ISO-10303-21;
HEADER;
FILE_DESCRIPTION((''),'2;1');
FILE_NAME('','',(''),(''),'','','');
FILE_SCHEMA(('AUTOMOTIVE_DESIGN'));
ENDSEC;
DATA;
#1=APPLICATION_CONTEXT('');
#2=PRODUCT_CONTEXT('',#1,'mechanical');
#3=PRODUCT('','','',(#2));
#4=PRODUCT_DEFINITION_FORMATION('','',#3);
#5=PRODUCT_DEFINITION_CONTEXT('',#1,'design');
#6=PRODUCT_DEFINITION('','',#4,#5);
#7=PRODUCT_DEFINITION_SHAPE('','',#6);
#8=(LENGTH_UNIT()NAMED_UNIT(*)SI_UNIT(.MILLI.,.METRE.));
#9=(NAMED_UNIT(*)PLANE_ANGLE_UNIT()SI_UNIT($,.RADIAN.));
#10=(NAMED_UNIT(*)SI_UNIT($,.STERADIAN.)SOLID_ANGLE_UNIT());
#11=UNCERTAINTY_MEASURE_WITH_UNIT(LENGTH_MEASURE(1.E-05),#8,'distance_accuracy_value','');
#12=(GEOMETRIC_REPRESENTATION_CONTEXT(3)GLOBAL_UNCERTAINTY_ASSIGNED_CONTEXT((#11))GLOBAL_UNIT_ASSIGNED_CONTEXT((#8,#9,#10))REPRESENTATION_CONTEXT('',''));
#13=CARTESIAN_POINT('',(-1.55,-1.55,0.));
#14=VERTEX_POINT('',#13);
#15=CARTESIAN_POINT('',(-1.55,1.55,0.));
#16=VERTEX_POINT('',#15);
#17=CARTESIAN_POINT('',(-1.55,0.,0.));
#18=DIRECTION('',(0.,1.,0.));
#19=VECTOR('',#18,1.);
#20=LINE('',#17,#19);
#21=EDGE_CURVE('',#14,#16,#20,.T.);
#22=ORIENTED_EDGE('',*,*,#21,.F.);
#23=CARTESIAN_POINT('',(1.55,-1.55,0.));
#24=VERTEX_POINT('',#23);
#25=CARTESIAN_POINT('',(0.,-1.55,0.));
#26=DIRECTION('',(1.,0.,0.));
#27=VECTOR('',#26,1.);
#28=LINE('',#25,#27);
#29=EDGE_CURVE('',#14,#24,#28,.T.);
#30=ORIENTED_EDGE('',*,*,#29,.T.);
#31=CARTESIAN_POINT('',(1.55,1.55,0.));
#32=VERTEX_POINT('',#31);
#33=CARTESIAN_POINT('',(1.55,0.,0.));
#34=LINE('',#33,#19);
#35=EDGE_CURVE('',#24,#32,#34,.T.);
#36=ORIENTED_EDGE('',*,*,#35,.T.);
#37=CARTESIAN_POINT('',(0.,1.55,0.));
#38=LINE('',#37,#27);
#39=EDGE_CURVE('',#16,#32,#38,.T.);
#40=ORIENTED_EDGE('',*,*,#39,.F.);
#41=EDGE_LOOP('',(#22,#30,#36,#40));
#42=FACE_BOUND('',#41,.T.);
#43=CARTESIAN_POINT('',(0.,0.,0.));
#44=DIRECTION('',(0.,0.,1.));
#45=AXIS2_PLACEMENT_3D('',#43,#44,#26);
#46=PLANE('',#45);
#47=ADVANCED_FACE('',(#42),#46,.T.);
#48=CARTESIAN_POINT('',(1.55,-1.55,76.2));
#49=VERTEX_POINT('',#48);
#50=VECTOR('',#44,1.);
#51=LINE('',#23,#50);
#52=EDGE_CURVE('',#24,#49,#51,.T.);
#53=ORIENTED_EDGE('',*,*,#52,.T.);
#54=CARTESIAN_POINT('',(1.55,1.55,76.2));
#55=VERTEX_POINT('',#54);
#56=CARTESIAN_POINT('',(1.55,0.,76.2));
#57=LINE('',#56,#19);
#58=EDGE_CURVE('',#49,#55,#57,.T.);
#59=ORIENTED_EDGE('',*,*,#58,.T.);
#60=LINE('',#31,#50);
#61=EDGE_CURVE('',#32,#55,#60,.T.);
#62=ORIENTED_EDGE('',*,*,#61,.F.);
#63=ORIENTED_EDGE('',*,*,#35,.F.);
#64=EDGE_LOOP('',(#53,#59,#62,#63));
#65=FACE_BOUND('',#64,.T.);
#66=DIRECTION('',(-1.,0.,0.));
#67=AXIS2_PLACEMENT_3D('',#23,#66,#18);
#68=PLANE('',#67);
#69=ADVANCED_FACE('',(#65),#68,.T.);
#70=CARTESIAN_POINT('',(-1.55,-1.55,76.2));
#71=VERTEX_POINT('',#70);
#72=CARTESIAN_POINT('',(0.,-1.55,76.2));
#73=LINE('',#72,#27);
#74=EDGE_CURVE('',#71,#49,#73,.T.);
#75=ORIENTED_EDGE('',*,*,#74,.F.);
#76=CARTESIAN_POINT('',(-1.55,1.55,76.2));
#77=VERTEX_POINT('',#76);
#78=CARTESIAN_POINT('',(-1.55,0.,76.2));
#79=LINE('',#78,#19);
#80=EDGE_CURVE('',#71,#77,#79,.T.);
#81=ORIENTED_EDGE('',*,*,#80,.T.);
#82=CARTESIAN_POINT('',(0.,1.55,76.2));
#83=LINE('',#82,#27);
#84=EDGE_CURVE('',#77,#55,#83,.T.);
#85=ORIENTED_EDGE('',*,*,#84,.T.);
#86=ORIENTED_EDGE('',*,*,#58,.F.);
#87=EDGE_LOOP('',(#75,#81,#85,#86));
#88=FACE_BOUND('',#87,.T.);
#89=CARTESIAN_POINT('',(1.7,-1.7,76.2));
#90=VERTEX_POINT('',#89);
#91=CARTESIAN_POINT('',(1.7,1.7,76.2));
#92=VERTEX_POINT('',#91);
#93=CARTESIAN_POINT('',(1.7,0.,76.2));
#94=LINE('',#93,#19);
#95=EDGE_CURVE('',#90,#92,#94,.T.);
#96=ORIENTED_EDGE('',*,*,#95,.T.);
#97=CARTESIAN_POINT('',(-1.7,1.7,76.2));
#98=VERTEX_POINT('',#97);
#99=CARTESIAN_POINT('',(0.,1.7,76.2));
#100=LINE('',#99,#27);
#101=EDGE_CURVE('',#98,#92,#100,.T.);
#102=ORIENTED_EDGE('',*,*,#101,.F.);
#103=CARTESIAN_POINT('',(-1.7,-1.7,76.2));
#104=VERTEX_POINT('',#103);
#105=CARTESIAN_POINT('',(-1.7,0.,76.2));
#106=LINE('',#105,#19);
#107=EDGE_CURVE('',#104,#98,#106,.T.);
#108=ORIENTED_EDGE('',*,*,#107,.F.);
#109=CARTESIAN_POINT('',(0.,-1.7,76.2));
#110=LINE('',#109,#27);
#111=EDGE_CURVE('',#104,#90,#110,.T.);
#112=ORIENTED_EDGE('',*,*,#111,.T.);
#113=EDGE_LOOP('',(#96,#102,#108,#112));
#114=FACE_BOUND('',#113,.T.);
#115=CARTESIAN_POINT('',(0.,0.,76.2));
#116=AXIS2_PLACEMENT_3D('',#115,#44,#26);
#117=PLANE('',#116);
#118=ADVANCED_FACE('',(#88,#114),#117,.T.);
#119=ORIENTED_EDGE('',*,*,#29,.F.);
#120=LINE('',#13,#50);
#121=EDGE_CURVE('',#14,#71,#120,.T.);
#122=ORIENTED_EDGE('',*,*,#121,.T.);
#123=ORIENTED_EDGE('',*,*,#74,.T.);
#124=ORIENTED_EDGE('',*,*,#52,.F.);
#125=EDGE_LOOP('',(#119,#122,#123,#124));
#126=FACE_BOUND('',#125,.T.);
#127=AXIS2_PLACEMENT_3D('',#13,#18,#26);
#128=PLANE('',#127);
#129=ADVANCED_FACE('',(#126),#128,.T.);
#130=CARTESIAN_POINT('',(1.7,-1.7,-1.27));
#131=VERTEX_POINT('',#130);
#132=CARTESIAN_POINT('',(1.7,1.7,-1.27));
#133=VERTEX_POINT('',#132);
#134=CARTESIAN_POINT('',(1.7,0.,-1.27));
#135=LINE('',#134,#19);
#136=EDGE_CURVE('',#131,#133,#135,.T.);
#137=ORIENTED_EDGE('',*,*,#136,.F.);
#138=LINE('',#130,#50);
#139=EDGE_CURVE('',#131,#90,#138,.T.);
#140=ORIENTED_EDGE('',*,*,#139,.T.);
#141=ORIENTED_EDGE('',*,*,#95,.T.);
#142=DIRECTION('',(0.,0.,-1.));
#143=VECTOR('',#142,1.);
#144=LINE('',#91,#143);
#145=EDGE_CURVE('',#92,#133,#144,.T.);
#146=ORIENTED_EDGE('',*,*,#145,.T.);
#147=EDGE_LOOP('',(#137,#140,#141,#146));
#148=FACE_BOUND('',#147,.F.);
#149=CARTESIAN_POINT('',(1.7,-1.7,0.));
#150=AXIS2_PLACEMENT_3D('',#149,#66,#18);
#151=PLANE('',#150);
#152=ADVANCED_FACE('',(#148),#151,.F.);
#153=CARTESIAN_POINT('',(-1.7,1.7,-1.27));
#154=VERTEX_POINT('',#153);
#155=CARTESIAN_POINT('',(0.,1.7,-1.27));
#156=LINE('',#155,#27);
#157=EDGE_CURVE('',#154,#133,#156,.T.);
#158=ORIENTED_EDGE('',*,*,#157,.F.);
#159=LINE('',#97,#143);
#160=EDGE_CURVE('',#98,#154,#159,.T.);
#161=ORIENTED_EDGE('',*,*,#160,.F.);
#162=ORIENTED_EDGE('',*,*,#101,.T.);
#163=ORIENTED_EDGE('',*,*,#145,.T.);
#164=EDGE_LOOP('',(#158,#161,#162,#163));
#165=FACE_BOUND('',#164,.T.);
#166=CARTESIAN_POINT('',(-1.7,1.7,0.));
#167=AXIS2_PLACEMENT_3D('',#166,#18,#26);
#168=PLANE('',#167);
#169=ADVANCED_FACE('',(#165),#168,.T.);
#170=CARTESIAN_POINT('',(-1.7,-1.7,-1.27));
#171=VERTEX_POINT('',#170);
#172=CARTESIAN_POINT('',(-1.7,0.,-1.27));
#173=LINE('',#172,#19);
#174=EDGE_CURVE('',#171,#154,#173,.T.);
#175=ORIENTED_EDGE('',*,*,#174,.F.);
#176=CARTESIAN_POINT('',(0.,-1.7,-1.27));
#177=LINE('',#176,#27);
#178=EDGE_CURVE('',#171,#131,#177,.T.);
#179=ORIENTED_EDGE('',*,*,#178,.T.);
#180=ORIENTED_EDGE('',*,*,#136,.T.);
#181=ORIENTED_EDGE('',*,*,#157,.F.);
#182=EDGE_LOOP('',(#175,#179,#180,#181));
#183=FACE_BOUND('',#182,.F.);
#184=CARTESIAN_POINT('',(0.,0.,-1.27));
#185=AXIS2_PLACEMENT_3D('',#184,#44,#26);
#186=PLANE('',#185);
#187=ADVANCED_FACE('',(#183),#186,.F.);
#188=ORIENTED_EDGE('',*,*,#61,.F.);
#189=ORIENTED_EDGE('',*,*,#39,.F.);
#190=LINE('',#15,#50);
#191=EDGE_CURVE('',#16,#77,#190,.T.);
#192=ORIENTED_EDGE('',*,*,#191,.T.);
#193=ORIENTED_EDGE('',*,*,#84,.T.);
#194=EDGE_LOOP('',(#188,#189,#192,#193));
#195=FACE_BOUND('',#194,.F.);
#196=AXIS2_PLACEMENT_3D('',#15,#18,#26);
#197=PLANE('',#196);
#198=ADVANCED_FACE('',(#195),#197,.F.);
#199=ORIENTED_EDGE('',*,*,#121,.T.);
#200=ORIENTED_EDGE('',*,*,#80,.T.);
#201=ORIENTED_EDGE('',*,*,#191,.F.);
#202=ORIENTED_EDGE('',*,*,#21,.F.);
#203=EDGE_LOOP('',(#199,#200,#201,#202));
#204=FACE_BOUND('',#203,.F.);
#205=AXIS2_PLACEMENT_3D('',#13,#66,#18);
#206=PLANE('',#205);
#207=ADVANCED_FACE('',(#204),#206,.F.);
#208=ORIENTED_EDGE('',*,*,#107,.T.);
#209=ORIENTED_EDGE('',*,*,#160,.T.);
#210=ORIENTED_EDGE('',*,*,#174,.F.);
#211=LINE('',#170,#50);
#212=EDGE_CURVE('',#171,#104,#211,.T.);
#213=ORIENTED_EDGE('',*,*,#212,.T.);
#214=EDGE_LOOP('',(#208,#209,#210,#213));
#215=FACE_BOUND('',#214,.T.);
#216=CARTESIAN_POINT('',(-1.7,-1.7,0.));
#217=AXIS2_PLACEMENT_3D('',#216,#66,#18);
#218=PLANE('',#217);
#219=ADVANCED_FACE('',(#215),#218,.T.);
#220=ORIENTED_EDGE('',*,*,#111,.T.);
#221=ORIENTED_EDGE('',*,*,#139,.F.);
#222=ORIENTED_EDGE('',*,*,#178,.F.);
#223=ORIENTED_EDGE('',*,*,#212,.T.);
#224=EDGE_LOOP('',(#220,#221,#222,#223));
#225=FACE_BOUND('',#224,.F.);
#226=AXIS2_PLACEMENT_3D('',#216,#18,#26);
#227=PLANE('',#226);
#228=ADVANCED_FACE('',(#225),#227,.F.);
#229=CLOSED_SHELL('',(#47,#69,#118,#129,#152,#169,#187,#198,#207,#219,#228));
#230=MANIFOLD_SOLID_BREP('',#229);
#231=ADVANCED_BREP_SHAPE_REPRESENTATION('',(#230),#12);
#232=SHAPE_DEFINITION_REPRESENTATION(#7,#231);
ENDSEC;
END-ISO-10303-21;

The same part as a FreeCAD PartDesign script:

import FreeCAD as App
import Part
import Sketcher
Q = App.Units.Quantity


def add_polygon(sketch, points):
    """Adds a closed chain of lines whose ends are joined by coincident constraints."""
    first, n = sketch.GeometryCount, len(points)
    for a, b in zip(points, points[1:] + points[:1]):
        sketch.addGeometry(Part.LineSegment(App.Vector(*a, 0), App.Vector(*b, 0)), False)
    for i in range(n):
        sketch.addConstraint(Sketcher.Constraint("Coincident", first + i, 2, first + (i + 1) % n, 1))

doc = App.newDocument("Part")
params = doc.addObject("Spreadsheet::Sheet", "Params")
for row, (alias, value) in enumerate([
    ("sketch1_width", "3.4 mm"),
    ("pad1_length", "1.27 mm"),
    ("sketch2_width", "3.4 mm"),
    ("sketch2_width2", "3.1 mm"),
    ("pad2_length", "76.2 mm"),
], start=1):
    params.set(f"A{row}", alias)
    params.set(f"B{row}", "=" + value)
    params.setAlias(f"B{row}", alias)

body = doc.addObject("PartDesign::Body", "Body")

# Sketch on XY plane
sketch1 = body.newObject("Sketcher::SketchObject", "Sketch")
sketch1.AttachmentSupport = (doc.getObject("XY_Plane"), [""])
sketch1.MapMode = "FlatFace"
add_polygon(sketch1, [(-1.7, 1.7), (-1.7, -1.7), (1.7, -1.7), (1.7, 1.7)])  # lines 0-3
sketch1.addConstraint([
    Sketcher.Constraint("Vertical", 0),
    Sketcher.Constraint("Horizontal", 1),
    Sketcher.Constraint("Vertical", 2),
    Sketcher.Constraint("Horizontal", 3),
    Sketcher.Constraint("Symmetric", 0, 2, 2, 2, -1, 1),
    Sketcher.Constraint("Equal", 3, 0),
    Sketcher.Constraint("DistanceX", 1, 1, 1, 2, Q("3.4 mm")),
])
sketch1.setExpression("Constraints[10]", "Params.sketch1_width")
pad1 = body.newObject("PartDesign::Pad", "Pad")
pad1.Profile = sketch1
pad1.setExpression("Length", "Params.pad1_length")
pad1.Reversed = True

# Sketch on XY plane
sketch2 = body.newObject("Sketcher::SketchObject", "Sketch001")
sketch2.AttachmentSupport = (doc.getObject("XY_Plane"), [""])
sketch2.MapMode = "FlatFace"
add_polygon(sketch2, [(-1.7, 1.7), (-1.7, -1.7), (1.7, -1.7), (1.7, 1.7)])  # lines 0-3
add_polygon(sketch2, [(1.6, -1.6), (-1.6, -1.6), (-1.6, 1.6), (1.6, 1.6)])  # lines 4-7
sketch2.addConstraint([
    Sketcher.Constraint("Vertical", 0),
    Sketcher.Constraint("Horizontal", 1),
    Sketcher.Constraint("Vertical", 2),
    Sketcher.Constraint("Horizontal", 3),
    Sketcher.Constraint("Horizontal", 4),
    Sketcher.Constraint("Vertical", 5),
    Sketcher.Constraint("Horizontal", 6),
    Sketcher.Constraint("Vertical", 7),
    Sketcher.Constraint("Symmetric", 0, 2, 2, 2, -1, 1),
    Sketcher.Constraint("Symmetric", 4, 2, 6, 2, -1, 1),
    Sketcher.Constraint("Equal", 3, 0),
    Sketcher.Constraint("Equal", 6, 5),
    Sketcher.Constraint("DistanceX", 1, 1, 1, 2, Q("3.4 mm")),
    Sketcher.Constraint("DistanceX", 4, 2, 4, 1, Q("3.1 mm")),
])
sketch2.setExpression("Constraints[20]", "Params.sketch2_width")
sketch2.setExpression("Constraints[21]", "Params.sketch2_width2")
pad2 = body.newObject("PartDesign::Pad", "Pad001")
pad2.Profile = sketch2
pad2.setExpression("Length", "Params.pad2_length")

doc.recompute()
